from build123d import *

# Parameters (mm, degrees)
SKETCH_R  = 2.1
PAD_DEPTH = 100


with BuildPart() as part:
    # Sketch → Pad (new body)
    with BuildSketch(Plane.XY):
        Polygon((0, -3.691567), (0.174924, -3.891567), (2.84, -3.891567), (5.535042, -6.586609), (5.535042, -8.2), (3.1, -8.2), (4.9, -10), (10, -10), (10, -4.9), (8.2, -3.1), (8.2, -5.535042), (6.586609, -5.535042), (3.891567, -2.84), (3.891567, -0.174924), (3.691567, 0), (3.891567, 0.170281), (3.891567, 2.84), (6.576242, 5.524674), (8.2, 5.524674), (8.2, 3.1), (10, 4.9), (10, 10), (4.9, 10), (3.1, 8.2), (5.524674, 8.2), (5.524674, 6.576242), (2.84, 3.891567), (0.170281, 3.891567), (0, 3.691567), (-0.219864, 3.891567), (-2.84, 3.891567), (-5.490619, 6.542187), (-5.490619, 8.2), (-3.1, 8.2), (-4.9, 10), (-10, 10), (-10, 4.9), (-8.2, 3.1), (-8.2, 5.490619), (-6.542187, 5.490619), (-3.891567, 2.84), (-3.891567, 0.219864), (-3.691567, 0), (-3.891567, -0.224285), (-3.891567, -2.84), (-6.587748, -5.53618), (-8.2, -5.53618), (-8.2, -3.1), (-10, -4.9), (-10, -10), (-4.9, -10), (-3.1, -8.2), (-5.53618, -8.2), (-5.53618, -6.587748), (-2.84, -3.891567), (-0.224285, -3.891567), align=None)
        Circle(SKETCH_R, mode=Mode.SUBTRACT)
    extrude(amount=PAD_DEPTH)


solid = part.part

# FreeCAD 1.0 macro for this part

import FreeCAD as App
import Part
import Sketcher
from FreeCAD import Vector

doc = App.newDocument("Part")
body = doc.addObject("PartDesign::Body", "Body")

# Sketch on XY plane
sketch1 = body.newObject("Sketcher::SketchObject", "Sketch")
sketch1.AttachmentSupport = (doc.getObject("XY_Plane"), [""])
sketch1.MapMode = "FlatFace"
sketch1.addGeometry(Part.LineSegment(Vector(0, -3.69, 0), Vector(0.17, -3.89, 0)), False)
sketch1.addGeometry(Part.LineSegment(Vector(0.17, -3.89, 0), Vector(2.84, -3.89, 0)), False)
sketch1.addGeometry(Part.LineSegment(Vector(2.84, -3.89, 0), Vector(5.54, -6.59, 0)), False)
sketch1.addGeometry(Part.LineSegment(Vector(5.54, -6.59, 0), Vector(5.54, -8.2, 0)), False)
sketch1.addGeometry(Part.LineSegment(Vector(5.54, -8.2, 0), Vector(3.1, -8.2, 0)), False)
sketch1.addGeometry(Part.LineSegment(Vector(3.1, -8.2, 0), Vector(4.9, -10, 0)), False)
sketch1.addGeometry(Part.LineSegment(Vector(4.9, -10, 0), Vector(10, -10, 0)), False)
sketch1.addGeometry(Part.LineSegment(Vector(10, -10, 0), Vector(10, -4.9, 0)), False)
sketch1.addGeometry(Part.LineSegment(Vector(10, -4.9, 0), Vector(8.2, -3.1, 0)), False)
sketch1.addGeometry(Part.LineSegment(Vector(8.2, -3.1, 0), Vector(8.2, -5.54, 0)), False)
sketch1.addGeometry(Part.LineSegment(Vector(8.2, -5.54, 0), Vector(6.59, -5.54, 0)), False)
sketch1.addGeometry(Part.LineSegment(Vector(6.59, -5.54, 0), Vector(3.89, -2.84, 0)), False)
sketch1.addGeometry(Part.LineSegment(Vector(3.89, -2.84, 0), Vector(3.89, -0.17, 0)), False)
sketch1.addGeometry(Part.LineSegment(Vector(3.89, -0.17, 0), Vector(3.69, 0, 0)), False)
sketch1.addGeometry(Part.LineSegment(Vector(3.69, 0, 0), Vector(3.89, 0.17, 0)), False)
sketch1.addGeometry(Part.LineSegment(Vector(3.89, 0.17, 0), Vector(3.89, 2.84, 0)), False)
sketch1.addGeometry(Part.LineSegment(Vector(3.89, 2.84, 0), Vector(6.58, 5.52, 0)), False)
sketch1.addGeometry(Part.LineSegment(Vector(6.58, 5.52, 0), Vector(8.2, 5.52, 0)), False)
sketch1.addGeometry(Part.LineSegment(Vector(8.2, 5.52, 0), Vector(8.2, 3.1, 0)), False)
sketch1.addGeometry(Part.LineSegment(Vector(8.2, 3.1, 0), Vector(10, 4.9, 0)), False)
sketch1.addGeometry(Part.LineSegment(Vector(10, 4.9, 0), Vector(10, 10, 0)), False)
sketch1.addGeometry(Part.LineSegment(Vector(10, 10, 0), Vector(4.9, 10, 0)), False)
sketch1.addGeometry(Part.LineSegment(Vector(4.9, 10, 0), Vector(3.1, 8.2, 0)), False)
sketch1.addGeometry(Part.LineSegment(Vector(3.1, 8.2, 0), Vector(5.52, 8.2, 0)), False)
sketch1.addGeometry(Part.LineSegment(Vector(5.52, 8.2, 0), Vector(5.52, 6.58, 0)), False)
sketch1.addGeometry(Part.LineSegment(Vector(5.52, 6.58, 0), Vector(2.84, 3.89, 0)), False)
sketch1.addGeometry(Part.LineSegment(Vector(2.84, 3.89, 0), Vector(0.17, 3.89, 0)), False)
sketch1.addGeometry(Part.LineSegment(Vector(0.17, 3.89, 0), Vector(0, 3.69, 0)), False)
sketch1.addGeometry(Part.LineSegment(Vector(0, 3.69, 0), Vector(-0.22, 3.89, 0)), False)
sketch1.addGeometry(Part.LineSegment(Vector(-0.22, 3.89, 0), Vector(-2.84, 3.89, 0)), False)
sketch1.addGeometry(Part.LineSegment(Vector(-2.84, 3.89, 0), Vector(-5.49, 6.54, 0)), False)
sketch1.addGeometry(Part.LineSegment(Vector(-5.49, 6.54, 0), Vector(-5.49, 8.2, 0)), False)
sketch1.addGeometry(Part.LineSegment(Vector(-5.49, 8.2, 0), Vector(-3.1, 8.2, 0)), False)
sketch1.addGeometry(Part.LineSegment(Vector(-3.1, 8.2, 0), Vector(-4.9, 10, 0)), False)
sketch1.addGeometry(Part.LineSegment(Vector(-4.9, 10, 0), Vector(-10, 10, 0)), False)
sketch1.addGeometry(Part.LineSegment(Vector(-10, 10, 0), Vector(-10, 4.9, 0)), False)
sketch1.addGeometry(Part.LineSegment(Vector(-10, 4.9, 0), Vector(-8.2, 3.1, 0)), False)
sketch1.addGeometry(Part.LineSegment(Vector(-8.2, 3.1, 0), Vector(-8.2, 5.49, 0)), False)
sketch1.addGeometry(Part.LineSegment(Vector(-8.2, 5.49, 0), Vector(-6.54, 5.49, 0)), False)
sketch1.addGeometry(Part.LineSegment(Vector(-6.54, 5.49, 0), Vector(-3.89, 2.84, 0)), False)
sketch1.addGeometry(Part.LineSegment(Vector(-3.89, 2.84, 0), Vector(-3.89, 0.22, 0)), False)
sketch1.addGeometry(Part.LineSegment(Vector(-3.89, 0.22, 0), Vector(-3.69, 0, 0)), False)
sketch1.addGeometry(Part.LineSegment(Vector(-3.69, 0, 0), Vector(-3.89, -0.22, 0)), False)
sketch1.addGeometry(Part.LineSegment(Vector(-3.89, -0.22, 0), Vector(-3.89, -2.84, 0)), False)
sketch1.addGeometry(Part.LineSegment(Vector(-3.89, -2.84, 0), Vector(-6.59, -5.54, 0)), False)
sketch1.addGeometry(Part.LineSegment(Vector(-6.59, -5.54, 0), Vector(-8.2, -5.54, 0)), False)
sketch1.addGeometry(Part.LineSegment(Vector(-8.2, -5.54, 0), Vector(-8.2, -3.1, 0)), False)
sketch1.addGeometry(Part.LineSegment(Vector(-8.2, -3.1, 0), Vector(-10, -4.9, 0)), False)
sketch1.addGeometry(Part.LineSegment(Vector(-10, -4.9, 0), Vector(-10, -10, 0)), False)
sketch1.addGeometry(Part.LineSegment(Vector(-10, -10, 0), Vector(-4.9, -10, 0)), False)
sketch1.addGeometry(Part.LineSegment(Vector(-4.9, -10, 0), Vector(-3.1, -8.2, 0)), False)
sketch1.addGeometry(Part.LineSegment(Vector(-3.1, -8.2, 0), Vector(-5.54, -8.2, 0)), False)
sketch1.addGeometry(Part.LineSegment(Vector(-5.54, -8.2, 0), Vector(-5.54, -6.59, 0)), False)
sketch1.addGeometry(Part.LineSegment(Vector(-5.54, -6.59, 0), Vector(-2.84, -3.89, 0)), False)
sketch1.addGeometry(Part.LineSegment(Vector(-2.84, -3.89, 0), Vector(-0.22, -3.89, 0)), False)
sketch1.addGeometry(Part.LineSegment(Vector(-0.22, -3.89, 0), Vector(0, -3.69, 0)), False)
sketch1.addGeometry(Part.Circle(Vector(0, 0, 0), Vector(0, 0, 1), 2.1), False)
sketch1.addConstraint(Sketcher.Constraint("Coincident", 0, 2, 1, 1))
sketch1.addConstraint(Sketcher.Constraint("Coincident", 1, 2, 2, 1))
sketch1.addConstraint(Sketcher.Constraint("Coincident", 2, 2, 3, 1))
sketch1.addConstraint(Sketcher.Constraint("Coincident", 3, 2, 4, 1))
sketch1.addConstraint(Sketcher.Constraint("Coincident", 4, 2, 5, 1))
sketch1.addConstraint(Sketcher.Constraint("Coincident", 5, 2, 6, 1))
sketch1.addConstraint(Sketcher.Constraint("Coincident", 6, 2, 7, 1))
sketch1.addConstraint(Sketcher.Constraint("Coincident", 7, 2, 8, 1))
sketch1.addConstraint(Sketcher.Constraint("Coincident", 8, 2, 9, 1))
sketch1.addConstraint(Sketcher.Constraint("Coincident", 9, 2, 10, 1))
sketch1.addConstraint(Sketcher.Constraint("Coincident", 10, 2, 11, 1))
sketch1.addConstraint(Sketcher.Constraint("Coincident", 11, 2, 12, 1))
sketch1.addConstraint(Sketcher.Constraint("Coincident", 12, 2, 13, 1))
sketch1.addConstraint(Sketcher.Constraint("Coincident", 13, 2, 14, 1))
sketch1.addConstraint(Sketcher.Constraint("Coincident", 14, 2, 15, 1))
sketch1.addConstraint(Sketcher.Constraint("Coincident", 15, 2, 16, 1))
sketch1.addConstraint(Sketcher.Constraint("Coincident", 16, 2, 17, 1))
sketch1.addConstraint(Sketcher.Constraint("Coincident", 17, 2, 18, 1))
sketch1.addConstraint(Sketcher.Constraint("Coincident", 18, 2, 19, 1))
sketch1.addConstraint(Sketcher.Constraint("Coincident", 19, 2, 20, 1))
sketch1.addConstraint(Sketcher.Constraint("Coincident", 20, 2, 21, 1))
sketch1.addConstraint(Sketcher.Constraint("Coincident", 21, 2, 22, 1))
sketch1.addConstraint(Sketcher.Constraint("Coincident", 22, 2, 23, 1))
sketch1.addConstraint(Sketcher.Constraint("Coincident", 23, 2, 24, 1))
sketch1.addConstraint(Sketcher.Constraint("Coincident", 24, 2, 25, 1))
sketch1.addConstraint(Sketcher.Constraint("Coincident", 25, 2, 26, 1))
sketch1.addConstraint(Sketcher.Constraint("Coincident", 26, 2, 27, 1))
sketch1.addConstraint(Sketcher.Constraint("Coincident", 27, 2, 28, 1))
sketch1.addConstraint(Sketcher.Constraint("Coincident", 28, 2, 29, 1))
sketch1.addConstraint(Sketcher.Constraint("Coincident", 29, 2, 30, 1))
sketch1.addConstraint(Sketcher.Constraint("Coincident", 30, 2, 31, 1))
sketch1.addConstraint(Sketcher.Constraint("Coincident", 31, 2, 32, 1))
sketch1.addConstraint(Sketcher.Constraint("Coincident", 32, 2, 33, 1))
sketch1.addConstraint(Sketcher.Constraint("Coincident", 33, 2, 34, 1))
sketch1.addConstraint(Sketcher.Constraint("Coincident", 34, 2, 35, 1))
sketch1.addConstraint(Sketcher.Constraint("Coincident", 35, 2, 36, 1))
sketch1.addConstraint(Sketcher.Constraint("Coincident", 36, 2, 37, 1))
sketch1.addConstraint(Sketcher.Constraint("Coincident", 37, 2, 38, 1))
sketch1.addConstraint(Sketcher.Constraint("Coincident", 38, 2, 39, 1))
sketch1.addConstraint(Sketcher.Constraint("Coincident", 39, 2, 40, 1))
sketch1.addConstraint(Sketcher.Constraint("Coincident", 40, 2, 41, 1))
sketch1.addConstraint(Sketcher.Constraint("Coincident", 41, 2, 42, 1))
sketch1.addConstraint(Sketcher.Constraint("Coincident", 42, 2, 43, 1))
sketch1.addConstraint(Sketcher.Constraint("Coincident", 43, 2, 44, 1))
sketch1.addConstraint(Sketcher.Constraint("Coincident", 44, 2, 45, 1))
sketch1.addConstraint(Sketcher.Constraint("Coincident", 45, 2, 46, 1))
sketch1.addConstraint(Sketcher.Constraint("Coincident", 46, 2, 47, 1))
sketch1.addConstraint(Sketcher.Constraint("Coincident", 47, 2, 48, 1))
sketch1.addConstraint(Sketcher.Constraint("Coincident", 48, 2, 49, 1))
sketch1.addConstraint(Sketcher.Constraint("Coincident", 49, 2, 50, 1))
sketch1.addConstraint(Sketcher.Constraint("Coincident", 50, 2, 51, 1))
sketch1.addConstraint(Sketcher.Constraint("Coincident", 51, 2, 52, 1))
sketch1.addConstraint(Sketcher.Constraint("Coincident", 52, 2, 53, 1))
sketch1.addConstraint(Sketcher.Constraint("Coincident", 53, 2, 54, 1))
sketch1.addConstraint(Sketcher.Constraint("Coincident", 54, 2, 55, 1))
sketch1.addConstraint(Sketcher.Constraint("Coincident", 55, 2, 0, 1))
sketch1.addConstraint(Sketcher.Constraint("Horizontal", 1))
sketch1.addConstraint(Sketcher.Constraint("Vertical", 3))
sketch1.addConstraint(Sketcher.Constraint("Horizontal", 4))
sketch1.addConstraint(Sketcher.Constraint("Horizontal", 6))
sketch1.addConstraint(Sketcher.Constraint("Vertical", 7))
sketch1.addConstraint(Sketcher.Constraint("Vertical", 9))
sketch1.addConstraint(Sketcher.Constraint("Horizontal", 10))
sketch1.addConstraint(Sketcher.Constraint("Vertical", 12))
sketch1.addConstraint(Sketcher.Constraint("Vertical", 15))
sketch1.addConstraint(Sketcher.Constraint("Horizontal", 17))
sketch1.addConstraint(Sketcher.Constraint("Vertical", 18))
sketch1.addConstraint(Sketcher.Constraint("Vertical", 20))
sketch1.addConstraint(Sketcher.Constraint("Horizontal", 21))
sketch1.addConstraint(Sketcher.Constraint("Horizontal", 23))
sketch1.addConstraint(Sketcher.Constraint("Vertical", 24))
sketch1.addConstraint(Sketcher.Constraint("Horizontal", 26))
sketch1.addConstraint(Sketcher.Constraint("Horizontal", 29))
sketch1.addConstraint(Sketcher.Constraint("Vertical", 31))
sketch1.addConstraint(Sketcher.Constraint("Horizontal", 32))
sketch1.addConstraint(Sketcher.Constraint("Horizontal", 34))
sketch1.addConstraint(Sketcher.Constraint("Vertical", 35))
sketch1.addConstraint(Sketcher.Constraint("Vertical", 37))
sketch1.addConstraint(Sketcher.Constraint("Horizontal", 38))
sketch1.addConstraint(Sketcher.Constraint("Vertical", 40))
sketch1.addConstraint(Sketcher.Constraint("Vertical", 43))
sketch1.addConstraint(Sketcher.Constraint("Horizontal", 45))
sketch1.addConstraint(Sketcher.Constraint("Vertical", 46))
sketch1.addConstraint(Sketcher.Constraint("Vertical", 48))
sketch1.addConstraint(Sketcher.Constraint("Horizontal", 49))
sketch1.addConstraint(Sketcher.Constraint("Horizontal", 51))
sketch1.addConstraint(Sketcher.Constraint("Vertical", 52))
sketch1.addConstraint(Sketcher.Constraint("Horizontal", 54))
sketch1.addConstraint(Sketcher.Constraint("Coincident", 56, 3, -1, 1))
sketch1.addConstraint(Sketcher.Constraint("Symmetric", 1, 2, 29, 2, -1, 1))
sketch1.addConstraint(Sketcher.Constraint("Symmetric", 4, 2, 32, 2, -1, 1))
sketch1.addConstraint(Sketcher.Constraint("Symmetric", 5, 2, 33, 2, -1, 1))
sketch1.addConstraint(Sketcher.Constraint("Symmetric", 7, 2, 35, 2, -1, 1))
sketch1.addConstraint(Sketcher.Constraint("Symmetric", 8, 2, 36, 2, -1, 1))
sketch1.addConstraint(Sketcher.Constraint("Symmetric", 11, 2, 39, 2, -1, 1))
sketch1.addConstraint(Sketcher.Constraint("Symmetric", 13, 2, 41, 2, -1, 1))
sketch1.addConstraint(Sketcher.Constraint("Symmetric", 15, 2, 43, 2, -1, 1))
sketch1.addConstraint(Sketcher.Constraint("Symmetric", 18, 2, 46, 2, -1, 1))
sketch1.addConstraint(Sketcher.Constraint("Symmetric", 19, 2, 47, 2, -1, 1))
sketch1.addConstraint(Sketcher.Constraint("Symmetric", 21, 2, 49, 2, -1, 1))
sketch1.addConstraint(Sketcher.Constraint("Symmetric", 22, 2, 50, 2, -1, 1))
sketch1.addConstraint(Sketcher.Constraint("Symmetric", 25, 2, 53, 2, -1, 1))
sketch1.addConstraint(Sketcher.Constraint("Symmetric", 27, 2, 55, 2, -1, 1))
sketch1.addConstraint(Sketcher.Constraint("Symmetric", 25, 2, 29, 2, -2))
sketch1.addConstraint(Sketcher.Constraint("Symmetric", 22, 2, 32, 2, -2))
sketch1.addConstraint(Sketcher.Constraint("Symmetric", 21, 2, 33, 2, -2))
sketch1.addConstraint(Sketcher.Constraint("Symmetric", 19, 2, 35, 2, -2))
sketch1.addConstraint(Sketcher.Constraint("Symmetric", 18, 2, 36, 2, -2))
sketch1.addConstraint(Sketcher.Constraint("Symmetric", 15, 2, 39, 2, -2))
sketch1.addConstraint(Sketcher.Constraint("PointOnObject", 13, 2, -1))
sketch1.addConstraint(Sketcher.Constraint("PointOnObject", 27, 2, -2))
sketch1.addConstraint(Sketcher.Constraint("Parallel", 2, 5))
sketch1.addConstraint(Sketcher.Constraint("Parallel", 5, 8))
sketch1.addConstraint(Sketcher.Constraint("Parallel", 8, 11))
sketch1.addConstraint(Sketcher.Constraint("Perpendicular", 11, 16))
sketch1.addConstraint(Sketcher.Constraint("Parallel", 16, 19))
sketch1.addConstraint(Sketcher.Constraint("Parallel", 22, 25))
sketch1.addConstraint(Sketcher.Constraint("Perpendicular", 25, 30))
sketch1.addConstraint(Sketcher.Constraint("Parallel", 36, 39))
sketch1.addConstraint(Sketcher.Constraint("Perpendicular", 39, 44))
sketch1.addConstraint(Sketcher.Constraint("Parallel", 50, 53))
sketch1.addConstraint(Sketcher.Constraint("Equal", 10, 3))
sketch1.addConstraint(Sketcher.Constraint("Equal", 49, 7))
sketch1.addConstraint(Sketcher.Constraint("Equal", 4, 9))
sketch1.addConstraint(Sketcher.Constraint("Equal", 1, 12))
sketch1.addConstraint(Sketcher.Constraint("Equal", 26, 15))
sketch1.addConstraint(Sketcher.Constraint("Equal", 23, 18))
sketch1.addConstraint(Sketcher.Constraint("Equal", 38, 31))
sketch1.addConstraint(Sketcher.Constraint("Equal", 29, 40))
sketch1.addConstraint(Sketcher.Constraint("Equal", 54, 43))
sketch1.addConstraint(Sketcher.Constraint("Equal", 51, 46))
sketch1.addConstraint(Sketcher.Constraint("Equal", 5, 8))
sketch1.addConstraint(Sketcher.Constraint("Equal", 2, 11))
sketch1.addConstraint(Sketcher.Constraint("Equal", 0, 13))
sketch1.addConstraint(Sketcher.Constraint("Equal", 28, 41))
sketch1.addConstraint(Sketcher.Constraint("Diameter", 56, 4.2))
sketch1.addConstraint(Sketcher.Constraint("DistanceX", 6, 1, 6, 2, 5.1))
sketch1.addConstraint(Sketcher.Constraint("DistanceY", 5, 2, -1, 1, 10.0))
sketch1.addConstraint(Sketcher.Constraint("DistanceY", 3, 2, -1, 1, 8.2))
sketch1.addConstraint(Sketcher.Constraint("DistanceX", 13, 2, 12, 2, 0.2))
sketch1.addConstraint(Sketcher.Constraint("DistanceX", -1, 1, 1, 2, 2.84))
sketch1.addConstraint(Sketcher.Constraint("DistanceX", 4, 2, 4, 1, 2.435042))
sketch1.addConstraint(Sketcher.Constraint("DistanceX", 10, 2, 10, 1, 1.613391))
sketch1.addConstraint(Sketcher.Constraint("DistanceX", 26, 2, 26, 1, 2.669719))
sketch1.addConstraint(Sketcher.Constraint("DistanceX", 32, 1, 32, 2, 2.390619))
sketch1.addConstraint(Sketcher.Constraint("DistanceX", 45, 2, 45, 1, 1.612252))
sketch1.addConstraint(Sketcher.Constraint("Distance", 28, 0.297221))
sketch1.addConstraint(Sketcher.Constraint("DistanceX", 1, 1, 1, 2, 2.665076))
sketch1.addConstraint(Sketcher.Constraint("DistanceX", 17, 1, 17, 2, 1.623758))
sketch1.addConstraint(Sketcher.Constraint("DistanceX", 54, 1, 54, 2, 2.615715))
pad1 = body.newObject("PartDesign::Pad", "Pad")
pad1.Profile = sketch1
pad1.Length = 100

doc.recompute()
